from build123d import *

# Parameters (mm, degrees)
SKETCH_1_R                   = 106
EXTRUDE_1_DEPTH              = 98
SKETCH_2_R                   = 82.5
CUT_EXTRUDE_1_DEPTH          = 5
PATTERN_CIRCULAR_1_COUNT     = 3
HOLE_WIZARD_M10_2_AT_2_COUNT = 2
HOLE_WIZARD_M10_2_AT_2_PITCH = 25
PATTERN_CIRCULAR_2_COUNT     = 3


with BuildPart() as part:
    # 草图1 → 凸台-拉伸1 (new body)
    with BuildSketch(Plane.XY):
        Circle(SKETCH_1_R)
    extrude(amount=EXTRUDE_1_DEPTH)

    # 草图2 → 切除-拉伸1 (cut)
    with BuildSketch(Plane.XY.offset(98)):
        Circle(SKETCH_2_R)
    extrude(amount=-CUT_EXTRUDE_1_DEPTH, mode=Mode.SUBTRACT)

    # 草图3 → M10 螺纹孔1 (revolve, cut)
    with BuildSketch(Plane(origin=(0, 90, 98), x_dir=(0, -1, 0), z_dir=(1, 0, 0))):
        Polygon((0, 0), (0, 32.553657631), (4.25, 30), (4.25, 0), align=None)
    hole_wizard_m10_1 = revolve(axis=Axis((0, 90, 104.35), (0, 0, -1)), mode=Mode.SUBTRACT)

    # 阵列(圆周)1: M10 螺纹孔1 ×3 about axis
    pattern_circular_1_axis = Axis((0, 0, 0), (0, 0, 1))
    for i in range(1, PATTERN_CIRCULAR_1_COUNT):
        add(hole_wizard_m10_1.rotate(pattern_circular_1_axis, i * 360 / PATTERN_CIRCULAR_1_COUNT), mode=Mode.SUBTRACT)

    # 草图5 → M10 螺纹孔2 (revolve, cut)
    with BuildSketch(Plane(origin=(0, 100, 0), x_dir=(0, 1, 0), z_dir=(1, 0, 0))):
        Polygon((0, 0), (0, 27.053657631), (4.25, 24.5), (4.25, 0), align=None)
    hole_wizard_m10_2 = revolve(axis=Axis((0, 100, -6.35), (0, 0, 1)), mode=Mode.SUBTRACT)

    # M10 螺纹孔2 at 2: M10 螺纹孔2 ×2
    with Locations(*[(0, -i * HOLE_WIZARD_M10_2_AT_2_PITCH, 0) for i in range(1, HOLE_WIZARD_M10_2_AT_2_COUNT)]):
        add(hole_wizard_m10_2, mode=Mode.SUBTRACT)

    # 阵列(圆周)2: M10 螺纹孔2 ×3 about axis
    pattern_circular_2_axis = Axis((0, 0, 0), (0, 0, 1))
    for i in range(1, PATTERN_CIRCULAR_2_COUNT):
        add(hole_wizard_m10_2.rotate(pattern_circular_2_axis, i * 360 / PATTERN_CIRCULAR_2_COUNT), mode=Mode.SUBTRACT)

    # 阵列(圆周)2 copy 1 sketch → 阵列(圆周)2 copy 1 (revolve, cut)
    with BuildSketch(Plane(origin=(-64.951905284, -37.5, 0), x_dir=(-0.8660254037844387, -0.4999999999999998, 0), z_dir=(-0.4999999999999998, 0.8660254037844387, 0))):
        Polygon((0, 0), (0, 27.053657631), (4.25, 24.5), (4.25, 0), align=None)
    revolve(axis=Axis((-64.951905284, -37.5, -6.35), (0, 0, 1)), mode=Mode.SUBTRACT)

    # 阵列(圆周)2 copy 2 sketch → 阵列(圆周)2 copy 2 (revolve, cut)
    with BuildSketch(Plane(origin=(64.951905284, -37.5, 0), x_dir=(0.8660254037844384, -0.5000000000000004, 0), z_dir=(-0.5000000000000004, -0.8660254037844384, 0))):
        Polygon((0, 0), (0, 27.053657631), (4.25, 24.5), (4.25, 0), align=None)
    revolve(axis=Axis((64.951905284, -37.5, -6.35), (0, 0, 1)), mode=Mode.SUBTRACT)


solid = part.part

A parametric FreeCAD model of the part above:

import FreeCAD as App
import Part
import Sketcher

V = App.Vector
Q = App.Units.Quantity


def add_polygon(sketch, points):
    """Adds a closed chain of lines whose ends are joined by coincident constraints."""
    first, n = sketch.GeometryCount, len(points)
    for a, b in zip(points, points[1:] + points[:1]):
        sketch.addGeometry(Part.LineSegment(App.Vector(*a, 0), App.Vector(*b, 0)), False)
    for i in range(n):
        sketch.addConstraint(Sketcher.Constraint("Coincident", first + i, 2, first + (i + 1) % n, 1))

doc = App.newDocument("Part")
params = doc.addObject("Spreadsheet::Sheet", "Params")
for row, (alias, value) in enumerate([
    ("sketch1_diameter", "212 mm"),
    ("pad1_length", "98 mm"),
    ("sketch2_diameter", "165 mm"),
    ("pocket1_length", "5 mm"),
    ("sketch3_height", "30 mm"),
    ("sketch3_width", "4.25 mm"),
    ("groove_angle", "360 deg"),
    ("sketch4_height", "24.5 mm"),
    ("sketch4_width", "4.25 mm"),
    ("groove2_angle", "360 deg"),
    ("linearpattern_pitch", "25 mm"),
    ("sketch5_height", "24.5 mm"),
    ("sketch5_width", "4.25 mm"),
    ("groove3_angle", "360 deg"),
    ("sketch6_height", "24.5 mm"),
    ("sketch6_width", "4.25 mm"),
    ("groove4_angle", "360 deg"),
], start=1):
    params.set(f"A{row}", alias)
    params.set(f"B{row}", "=" + value)
    params.setAlias(f"B{row}", alias)

body = doc.addObject("PartDesign::Body", "Body")

# Sketch on XY plane
sketch1 = doc.addObject("Sketcher::SketchObject", "Sketch")
body.addObject(sketch1)
sketch1.AttachmentSupport = (doc.XY_Plane, [""])
sketch1.MapMode = "FlatFace"
sketch1.addGeometry(Part.Circle(V(0, 0, 0), V(0, 0, 1), 106), False)
sketch1.addConstraint([
    Sketcher.Constraint("Coincident", 0, 3, -1, 1),
    Sketcher.Constraint("Diameter", 0, 212.0),
])
sketch1.setExpression("Constraints[1]", "Params.sketch1_diameter")
pad1 = doc.addObject("PartDesign::Pad", "Pad")
body.addObject(pad1)
pad1.Profile = sketch1
pad1.setExpression("Length", "Params.pad1_length")

# Sketch on XY plane
sketch2 = doc.addObject("Sketcher::SketchObject", "Sketch001")
body.addObject(sketch2)
sketch2.AttachmentSupport = (doc.XY_Plane, [""])
sketch2.MapMode = "FlatFace"
sketch2.AttachmentOffset = App.Placement(V(0, 0, 98), App.Rotation())
sketch2.addGeometry(Part.Circle(V(0, 0, 0), V(0, 0, 1), 82), False)
sketch2.addConstraint([
    Sketcher.Constraint("Coincident", 0, 3, -1, 1),
    Sketcher.Constraint("Diameter", 0, 165.0),
])
sketch2.setExpression("Constraints[1]", "Params.sketch2_diameter")
pocket1 = doc.addObject("PartDesign::Pocket", "Pocket")
body.addObject(pocket1)
pocket1.Profile = sketch2
pocket1.setExpression("Length", "Params.pocket1_length")

# Sketch on YZ plane
sketch3 = doc.addObject("Sketcher::SketchObject", "Sketch002")
body.addObject(sketch3)
sketch3.AttachmentSupport = (doc.YZ_Plane, [""])
sketch3.MapMode = "FlatFace"
add_polygon(sketch3, [(90, 65.4), (90, 98), (85.8, 98), (85.8, 68)])  # lines 0-3
sketch3.addGeometry(Part.LineSegment(V(90, 98, 0), V(90, 65.4, 0)), True)  # axis
sketch3.addConstraint([
    Sketcher.Constraint("Vertical", 0),
    Sketcher.Constraint("Horizontal", 1),
    Sketcher.Constraint("Vertical", 2),
    Sketcher.Constraint("Vertical", 4),
    Sketcher.Constraint("Coincident", 4, 1, 0, 2),
    Sketcher.Constraint("Equal", 0, 4),
    Sketcher.Constraint("DistanceY", 2, 2, 2, 1, 30.0),
    Sketcher.Constraint("Angle", 3, Q("-31 deg")),
    Sketcher.Constraint("DistanceX", -1, 1, 0, 2, 90.0),
    Sketcher.Constraint("DistanceY", -1, 1, 0, 2, 98.0),
    Sketcher.Constraint("DistanceX", 1, 2, 1, 1, 4.25),
])
sketch3.setExpression("Constraints[10]", "Params.sketch3_height")
sketch3.setExpression("Constraints[14]", "Params.sketch3_width")
groove = doc.addObject("PartDesign::Groove", "Groove")
body.addObject(groove)
groove.Profile = sketch3
groove.ReferenceAxis = (sketch3, ["Axis0"])
groove.setExpression("Angle", "Params.groove_angle")
doc.recompute()

polarpattern = doc.addObject("PartDesign::PolarPattern", "PolarPattern")
body.addObject(polarpattern)
polarpattern.Originals = [groove]
polarpattern.Axis = (doc.Z_Axis, [""])
polarpattern.Angle = 360
polarpattern.Occurrences = 3
body.Tip = polarpattern

# Sketch on YZ plane
sketch4 = doc.addObject("Sketcher::SketchObject", "Sketch003")
body.addObject(sketch4)
sketch4.AttachmentSupport = (doc.YZ_Plane, [""])
sketch4.MapMode = "FlatFace"
add_polygon(sketch4, [(100, 27.1), (100, 0), (104.2, 0), (104.2, 24.5)])  # lines 0-3
sketch4.addGeometry(Part.LineSegment(V(100, 0, 0), V(100, 27.1, 0)), True)  # axis
sketch4.addConstraint([
    Sketcher.Constraint("Vertical", 0),
    Sketcher.Constraint("Horizontal", 1),
    Sketcher.Constraint("Vertical", 2),
    Sketcher.Constraint("Vertical", 4),
    Sketcher.Constraint("Coincident", 4, 1, 0, 2),
    Sketcher.Constraint("PointOnObject", 0, 2, -1),
    Sketcher.Constraint("Equal", 0, 4),
    Sketcher.Constraint("Angle", 3, Q("149 deg")),
    Sketcher.Constraint("DistanceY", 2, 1, 2, 2, 24.5),
    Sketcher.Constraint("DistanceX", -1, 1, 0, 2, 100.0),
    Sketcher.Constraint("DistanceX", 1, 1, 1, 2, 4.25),
])
sketch4.setExpression("Constraints[12]", "Params.sketch4_height")
sketch4.setExpression("Constraints[14]", "Params.sketch4_width")
groove2 = doc.addObject("PartDesign::Groove", "Groove001")
body.addObject(groove2)
groove2.Profile = sketch4
groove2.ReferenceAxis = (sketch4, ["Axis0"])
groove2.setExpression("Angle", "Params.groove2_angle")
doc.recompute()

linearpattern = doc.addObject("PartDesign::LinearPattern", "LinearPattern")
body.addObject(linearpattern)
linearpattern.Originals = [groove2]
linearpattern.Direction = (doc.Y_Axis, [""])
linearpattern.Mode = "offset"
linearpattern.setExpression("Offset", "Params.linearpattern_pitch")
linearpattern.Occurrences = 2
linearpattern.Reversed = True
body.Tip = linearpattern
doc.recompute()

polarpattern2 = doc.addObject("PartDesign::PolarPattern", "PolarPattern001")
body.addObject(polarpattern2)
polarpattern2.Originals = [groove2]
polarpattern2.Axis = (doc.Z_Axis, [""])
polarpattern2.Angle = 360
polarpattern2.Occurrences = 3
body.Tip = polarpattern2

# Sketch on an angled plane
sketch5 = doc.addObject("Sketcher::SketchObject", "Sketch004")
body.addObject(sketch5)
sketch5.Placement = App.Placement(V(-64.951905, -37.5, 0), App.Rotation(V(-0.866025404, -0.5, 0), V(0, 0, 1), V(-0.5, 0.866025404, 0), "ZXY"))
add_polygon(sketch5, [(0, 27.1), (0, 0), (4.3, 0), (4.3, 24.5)])  # lines 0-3
sketch5.addConstraint([
    Sketcher.Constraint("Vertical", 0),
    Sketcher.Constraint("Horizontal", 1),
    Sketcher.Constraint("Vertical", 2),
    Sketcher.Constraint("Coincident", 0, 2, -1, 1),
    Sketcher.Constraint("Angle", 3, Q("149 deg")),
    Sketcher.Constraint("DistanceY", 2, 1, 2, 2, 24.5),
    Sketcher.Constraint("DistanceX", 1, 1, 1, 2, 4.25),
])
sketch5.setExpression("Constraints[9]", "Params.sketch5_height")
sketch5.setExpression("Constraints[10]", "Params.sketch5_width")
groove3 = doc.addObject("PartDesign::Groove", "Groove002")
body.addObject(groove3)
groove3.Profile = sketch5
groove3.ReferenceAxis = (sketch5, ["V_Axis"])
groove3.setExpression("Angle", "Params.groove3_angle")

# Sketch on an angled plane
sketch6 = doc.addObject("Sketcher::SketchObject", "Sketch005")
body.addObject(sketch6)
sketch6.Placement = App.Placement(V(64.951905, -37.5, 0), App.Rotation(V(0.866025404, -0.5, 0), V(0, 0, 1), V(-0.5, -0.866025404, 0), "ZXY"))
add_polygon(sketch6, [(0, 27.1), (0, 0), (4.3, 0), (4.3, 24.5)])  # lines 0-3
sketch6.addConstraint([
    Sketcher.Constraint("Vertical", 0),
    Sketcher.Constraint("Horizontal", 1),
    Sketcher.Constraint("Vertical", 2),
    Sketcher.Constraint("Coincident", 0, 2, -1, 1),
    Sketcher.Constraint("Angle", 3, Q("149 deg")),
    Sketcher.Constraint("DistanceY", 2, 1, 2, 2, 24.5),
    Sketcher.Constraint("DistanceX", 1, 1, 1, 2, 4.25),
])
sketch6.setExpression("Constraints[9]", "Params.sketch6_height")
sketch6.setExpression("Constraints[10]", "Params.sketch6_width")
groove4 = doc.addObject("PartDesign::Groove", "Groove003")
body.addObject(groove4)
groove4.Profile = sketch6
groove4.ReferenceAxis = (sketch6, ["V_Axis"])
groove4.setExpression("Angle", "Params.groove4_angle")

doc.recompute()
